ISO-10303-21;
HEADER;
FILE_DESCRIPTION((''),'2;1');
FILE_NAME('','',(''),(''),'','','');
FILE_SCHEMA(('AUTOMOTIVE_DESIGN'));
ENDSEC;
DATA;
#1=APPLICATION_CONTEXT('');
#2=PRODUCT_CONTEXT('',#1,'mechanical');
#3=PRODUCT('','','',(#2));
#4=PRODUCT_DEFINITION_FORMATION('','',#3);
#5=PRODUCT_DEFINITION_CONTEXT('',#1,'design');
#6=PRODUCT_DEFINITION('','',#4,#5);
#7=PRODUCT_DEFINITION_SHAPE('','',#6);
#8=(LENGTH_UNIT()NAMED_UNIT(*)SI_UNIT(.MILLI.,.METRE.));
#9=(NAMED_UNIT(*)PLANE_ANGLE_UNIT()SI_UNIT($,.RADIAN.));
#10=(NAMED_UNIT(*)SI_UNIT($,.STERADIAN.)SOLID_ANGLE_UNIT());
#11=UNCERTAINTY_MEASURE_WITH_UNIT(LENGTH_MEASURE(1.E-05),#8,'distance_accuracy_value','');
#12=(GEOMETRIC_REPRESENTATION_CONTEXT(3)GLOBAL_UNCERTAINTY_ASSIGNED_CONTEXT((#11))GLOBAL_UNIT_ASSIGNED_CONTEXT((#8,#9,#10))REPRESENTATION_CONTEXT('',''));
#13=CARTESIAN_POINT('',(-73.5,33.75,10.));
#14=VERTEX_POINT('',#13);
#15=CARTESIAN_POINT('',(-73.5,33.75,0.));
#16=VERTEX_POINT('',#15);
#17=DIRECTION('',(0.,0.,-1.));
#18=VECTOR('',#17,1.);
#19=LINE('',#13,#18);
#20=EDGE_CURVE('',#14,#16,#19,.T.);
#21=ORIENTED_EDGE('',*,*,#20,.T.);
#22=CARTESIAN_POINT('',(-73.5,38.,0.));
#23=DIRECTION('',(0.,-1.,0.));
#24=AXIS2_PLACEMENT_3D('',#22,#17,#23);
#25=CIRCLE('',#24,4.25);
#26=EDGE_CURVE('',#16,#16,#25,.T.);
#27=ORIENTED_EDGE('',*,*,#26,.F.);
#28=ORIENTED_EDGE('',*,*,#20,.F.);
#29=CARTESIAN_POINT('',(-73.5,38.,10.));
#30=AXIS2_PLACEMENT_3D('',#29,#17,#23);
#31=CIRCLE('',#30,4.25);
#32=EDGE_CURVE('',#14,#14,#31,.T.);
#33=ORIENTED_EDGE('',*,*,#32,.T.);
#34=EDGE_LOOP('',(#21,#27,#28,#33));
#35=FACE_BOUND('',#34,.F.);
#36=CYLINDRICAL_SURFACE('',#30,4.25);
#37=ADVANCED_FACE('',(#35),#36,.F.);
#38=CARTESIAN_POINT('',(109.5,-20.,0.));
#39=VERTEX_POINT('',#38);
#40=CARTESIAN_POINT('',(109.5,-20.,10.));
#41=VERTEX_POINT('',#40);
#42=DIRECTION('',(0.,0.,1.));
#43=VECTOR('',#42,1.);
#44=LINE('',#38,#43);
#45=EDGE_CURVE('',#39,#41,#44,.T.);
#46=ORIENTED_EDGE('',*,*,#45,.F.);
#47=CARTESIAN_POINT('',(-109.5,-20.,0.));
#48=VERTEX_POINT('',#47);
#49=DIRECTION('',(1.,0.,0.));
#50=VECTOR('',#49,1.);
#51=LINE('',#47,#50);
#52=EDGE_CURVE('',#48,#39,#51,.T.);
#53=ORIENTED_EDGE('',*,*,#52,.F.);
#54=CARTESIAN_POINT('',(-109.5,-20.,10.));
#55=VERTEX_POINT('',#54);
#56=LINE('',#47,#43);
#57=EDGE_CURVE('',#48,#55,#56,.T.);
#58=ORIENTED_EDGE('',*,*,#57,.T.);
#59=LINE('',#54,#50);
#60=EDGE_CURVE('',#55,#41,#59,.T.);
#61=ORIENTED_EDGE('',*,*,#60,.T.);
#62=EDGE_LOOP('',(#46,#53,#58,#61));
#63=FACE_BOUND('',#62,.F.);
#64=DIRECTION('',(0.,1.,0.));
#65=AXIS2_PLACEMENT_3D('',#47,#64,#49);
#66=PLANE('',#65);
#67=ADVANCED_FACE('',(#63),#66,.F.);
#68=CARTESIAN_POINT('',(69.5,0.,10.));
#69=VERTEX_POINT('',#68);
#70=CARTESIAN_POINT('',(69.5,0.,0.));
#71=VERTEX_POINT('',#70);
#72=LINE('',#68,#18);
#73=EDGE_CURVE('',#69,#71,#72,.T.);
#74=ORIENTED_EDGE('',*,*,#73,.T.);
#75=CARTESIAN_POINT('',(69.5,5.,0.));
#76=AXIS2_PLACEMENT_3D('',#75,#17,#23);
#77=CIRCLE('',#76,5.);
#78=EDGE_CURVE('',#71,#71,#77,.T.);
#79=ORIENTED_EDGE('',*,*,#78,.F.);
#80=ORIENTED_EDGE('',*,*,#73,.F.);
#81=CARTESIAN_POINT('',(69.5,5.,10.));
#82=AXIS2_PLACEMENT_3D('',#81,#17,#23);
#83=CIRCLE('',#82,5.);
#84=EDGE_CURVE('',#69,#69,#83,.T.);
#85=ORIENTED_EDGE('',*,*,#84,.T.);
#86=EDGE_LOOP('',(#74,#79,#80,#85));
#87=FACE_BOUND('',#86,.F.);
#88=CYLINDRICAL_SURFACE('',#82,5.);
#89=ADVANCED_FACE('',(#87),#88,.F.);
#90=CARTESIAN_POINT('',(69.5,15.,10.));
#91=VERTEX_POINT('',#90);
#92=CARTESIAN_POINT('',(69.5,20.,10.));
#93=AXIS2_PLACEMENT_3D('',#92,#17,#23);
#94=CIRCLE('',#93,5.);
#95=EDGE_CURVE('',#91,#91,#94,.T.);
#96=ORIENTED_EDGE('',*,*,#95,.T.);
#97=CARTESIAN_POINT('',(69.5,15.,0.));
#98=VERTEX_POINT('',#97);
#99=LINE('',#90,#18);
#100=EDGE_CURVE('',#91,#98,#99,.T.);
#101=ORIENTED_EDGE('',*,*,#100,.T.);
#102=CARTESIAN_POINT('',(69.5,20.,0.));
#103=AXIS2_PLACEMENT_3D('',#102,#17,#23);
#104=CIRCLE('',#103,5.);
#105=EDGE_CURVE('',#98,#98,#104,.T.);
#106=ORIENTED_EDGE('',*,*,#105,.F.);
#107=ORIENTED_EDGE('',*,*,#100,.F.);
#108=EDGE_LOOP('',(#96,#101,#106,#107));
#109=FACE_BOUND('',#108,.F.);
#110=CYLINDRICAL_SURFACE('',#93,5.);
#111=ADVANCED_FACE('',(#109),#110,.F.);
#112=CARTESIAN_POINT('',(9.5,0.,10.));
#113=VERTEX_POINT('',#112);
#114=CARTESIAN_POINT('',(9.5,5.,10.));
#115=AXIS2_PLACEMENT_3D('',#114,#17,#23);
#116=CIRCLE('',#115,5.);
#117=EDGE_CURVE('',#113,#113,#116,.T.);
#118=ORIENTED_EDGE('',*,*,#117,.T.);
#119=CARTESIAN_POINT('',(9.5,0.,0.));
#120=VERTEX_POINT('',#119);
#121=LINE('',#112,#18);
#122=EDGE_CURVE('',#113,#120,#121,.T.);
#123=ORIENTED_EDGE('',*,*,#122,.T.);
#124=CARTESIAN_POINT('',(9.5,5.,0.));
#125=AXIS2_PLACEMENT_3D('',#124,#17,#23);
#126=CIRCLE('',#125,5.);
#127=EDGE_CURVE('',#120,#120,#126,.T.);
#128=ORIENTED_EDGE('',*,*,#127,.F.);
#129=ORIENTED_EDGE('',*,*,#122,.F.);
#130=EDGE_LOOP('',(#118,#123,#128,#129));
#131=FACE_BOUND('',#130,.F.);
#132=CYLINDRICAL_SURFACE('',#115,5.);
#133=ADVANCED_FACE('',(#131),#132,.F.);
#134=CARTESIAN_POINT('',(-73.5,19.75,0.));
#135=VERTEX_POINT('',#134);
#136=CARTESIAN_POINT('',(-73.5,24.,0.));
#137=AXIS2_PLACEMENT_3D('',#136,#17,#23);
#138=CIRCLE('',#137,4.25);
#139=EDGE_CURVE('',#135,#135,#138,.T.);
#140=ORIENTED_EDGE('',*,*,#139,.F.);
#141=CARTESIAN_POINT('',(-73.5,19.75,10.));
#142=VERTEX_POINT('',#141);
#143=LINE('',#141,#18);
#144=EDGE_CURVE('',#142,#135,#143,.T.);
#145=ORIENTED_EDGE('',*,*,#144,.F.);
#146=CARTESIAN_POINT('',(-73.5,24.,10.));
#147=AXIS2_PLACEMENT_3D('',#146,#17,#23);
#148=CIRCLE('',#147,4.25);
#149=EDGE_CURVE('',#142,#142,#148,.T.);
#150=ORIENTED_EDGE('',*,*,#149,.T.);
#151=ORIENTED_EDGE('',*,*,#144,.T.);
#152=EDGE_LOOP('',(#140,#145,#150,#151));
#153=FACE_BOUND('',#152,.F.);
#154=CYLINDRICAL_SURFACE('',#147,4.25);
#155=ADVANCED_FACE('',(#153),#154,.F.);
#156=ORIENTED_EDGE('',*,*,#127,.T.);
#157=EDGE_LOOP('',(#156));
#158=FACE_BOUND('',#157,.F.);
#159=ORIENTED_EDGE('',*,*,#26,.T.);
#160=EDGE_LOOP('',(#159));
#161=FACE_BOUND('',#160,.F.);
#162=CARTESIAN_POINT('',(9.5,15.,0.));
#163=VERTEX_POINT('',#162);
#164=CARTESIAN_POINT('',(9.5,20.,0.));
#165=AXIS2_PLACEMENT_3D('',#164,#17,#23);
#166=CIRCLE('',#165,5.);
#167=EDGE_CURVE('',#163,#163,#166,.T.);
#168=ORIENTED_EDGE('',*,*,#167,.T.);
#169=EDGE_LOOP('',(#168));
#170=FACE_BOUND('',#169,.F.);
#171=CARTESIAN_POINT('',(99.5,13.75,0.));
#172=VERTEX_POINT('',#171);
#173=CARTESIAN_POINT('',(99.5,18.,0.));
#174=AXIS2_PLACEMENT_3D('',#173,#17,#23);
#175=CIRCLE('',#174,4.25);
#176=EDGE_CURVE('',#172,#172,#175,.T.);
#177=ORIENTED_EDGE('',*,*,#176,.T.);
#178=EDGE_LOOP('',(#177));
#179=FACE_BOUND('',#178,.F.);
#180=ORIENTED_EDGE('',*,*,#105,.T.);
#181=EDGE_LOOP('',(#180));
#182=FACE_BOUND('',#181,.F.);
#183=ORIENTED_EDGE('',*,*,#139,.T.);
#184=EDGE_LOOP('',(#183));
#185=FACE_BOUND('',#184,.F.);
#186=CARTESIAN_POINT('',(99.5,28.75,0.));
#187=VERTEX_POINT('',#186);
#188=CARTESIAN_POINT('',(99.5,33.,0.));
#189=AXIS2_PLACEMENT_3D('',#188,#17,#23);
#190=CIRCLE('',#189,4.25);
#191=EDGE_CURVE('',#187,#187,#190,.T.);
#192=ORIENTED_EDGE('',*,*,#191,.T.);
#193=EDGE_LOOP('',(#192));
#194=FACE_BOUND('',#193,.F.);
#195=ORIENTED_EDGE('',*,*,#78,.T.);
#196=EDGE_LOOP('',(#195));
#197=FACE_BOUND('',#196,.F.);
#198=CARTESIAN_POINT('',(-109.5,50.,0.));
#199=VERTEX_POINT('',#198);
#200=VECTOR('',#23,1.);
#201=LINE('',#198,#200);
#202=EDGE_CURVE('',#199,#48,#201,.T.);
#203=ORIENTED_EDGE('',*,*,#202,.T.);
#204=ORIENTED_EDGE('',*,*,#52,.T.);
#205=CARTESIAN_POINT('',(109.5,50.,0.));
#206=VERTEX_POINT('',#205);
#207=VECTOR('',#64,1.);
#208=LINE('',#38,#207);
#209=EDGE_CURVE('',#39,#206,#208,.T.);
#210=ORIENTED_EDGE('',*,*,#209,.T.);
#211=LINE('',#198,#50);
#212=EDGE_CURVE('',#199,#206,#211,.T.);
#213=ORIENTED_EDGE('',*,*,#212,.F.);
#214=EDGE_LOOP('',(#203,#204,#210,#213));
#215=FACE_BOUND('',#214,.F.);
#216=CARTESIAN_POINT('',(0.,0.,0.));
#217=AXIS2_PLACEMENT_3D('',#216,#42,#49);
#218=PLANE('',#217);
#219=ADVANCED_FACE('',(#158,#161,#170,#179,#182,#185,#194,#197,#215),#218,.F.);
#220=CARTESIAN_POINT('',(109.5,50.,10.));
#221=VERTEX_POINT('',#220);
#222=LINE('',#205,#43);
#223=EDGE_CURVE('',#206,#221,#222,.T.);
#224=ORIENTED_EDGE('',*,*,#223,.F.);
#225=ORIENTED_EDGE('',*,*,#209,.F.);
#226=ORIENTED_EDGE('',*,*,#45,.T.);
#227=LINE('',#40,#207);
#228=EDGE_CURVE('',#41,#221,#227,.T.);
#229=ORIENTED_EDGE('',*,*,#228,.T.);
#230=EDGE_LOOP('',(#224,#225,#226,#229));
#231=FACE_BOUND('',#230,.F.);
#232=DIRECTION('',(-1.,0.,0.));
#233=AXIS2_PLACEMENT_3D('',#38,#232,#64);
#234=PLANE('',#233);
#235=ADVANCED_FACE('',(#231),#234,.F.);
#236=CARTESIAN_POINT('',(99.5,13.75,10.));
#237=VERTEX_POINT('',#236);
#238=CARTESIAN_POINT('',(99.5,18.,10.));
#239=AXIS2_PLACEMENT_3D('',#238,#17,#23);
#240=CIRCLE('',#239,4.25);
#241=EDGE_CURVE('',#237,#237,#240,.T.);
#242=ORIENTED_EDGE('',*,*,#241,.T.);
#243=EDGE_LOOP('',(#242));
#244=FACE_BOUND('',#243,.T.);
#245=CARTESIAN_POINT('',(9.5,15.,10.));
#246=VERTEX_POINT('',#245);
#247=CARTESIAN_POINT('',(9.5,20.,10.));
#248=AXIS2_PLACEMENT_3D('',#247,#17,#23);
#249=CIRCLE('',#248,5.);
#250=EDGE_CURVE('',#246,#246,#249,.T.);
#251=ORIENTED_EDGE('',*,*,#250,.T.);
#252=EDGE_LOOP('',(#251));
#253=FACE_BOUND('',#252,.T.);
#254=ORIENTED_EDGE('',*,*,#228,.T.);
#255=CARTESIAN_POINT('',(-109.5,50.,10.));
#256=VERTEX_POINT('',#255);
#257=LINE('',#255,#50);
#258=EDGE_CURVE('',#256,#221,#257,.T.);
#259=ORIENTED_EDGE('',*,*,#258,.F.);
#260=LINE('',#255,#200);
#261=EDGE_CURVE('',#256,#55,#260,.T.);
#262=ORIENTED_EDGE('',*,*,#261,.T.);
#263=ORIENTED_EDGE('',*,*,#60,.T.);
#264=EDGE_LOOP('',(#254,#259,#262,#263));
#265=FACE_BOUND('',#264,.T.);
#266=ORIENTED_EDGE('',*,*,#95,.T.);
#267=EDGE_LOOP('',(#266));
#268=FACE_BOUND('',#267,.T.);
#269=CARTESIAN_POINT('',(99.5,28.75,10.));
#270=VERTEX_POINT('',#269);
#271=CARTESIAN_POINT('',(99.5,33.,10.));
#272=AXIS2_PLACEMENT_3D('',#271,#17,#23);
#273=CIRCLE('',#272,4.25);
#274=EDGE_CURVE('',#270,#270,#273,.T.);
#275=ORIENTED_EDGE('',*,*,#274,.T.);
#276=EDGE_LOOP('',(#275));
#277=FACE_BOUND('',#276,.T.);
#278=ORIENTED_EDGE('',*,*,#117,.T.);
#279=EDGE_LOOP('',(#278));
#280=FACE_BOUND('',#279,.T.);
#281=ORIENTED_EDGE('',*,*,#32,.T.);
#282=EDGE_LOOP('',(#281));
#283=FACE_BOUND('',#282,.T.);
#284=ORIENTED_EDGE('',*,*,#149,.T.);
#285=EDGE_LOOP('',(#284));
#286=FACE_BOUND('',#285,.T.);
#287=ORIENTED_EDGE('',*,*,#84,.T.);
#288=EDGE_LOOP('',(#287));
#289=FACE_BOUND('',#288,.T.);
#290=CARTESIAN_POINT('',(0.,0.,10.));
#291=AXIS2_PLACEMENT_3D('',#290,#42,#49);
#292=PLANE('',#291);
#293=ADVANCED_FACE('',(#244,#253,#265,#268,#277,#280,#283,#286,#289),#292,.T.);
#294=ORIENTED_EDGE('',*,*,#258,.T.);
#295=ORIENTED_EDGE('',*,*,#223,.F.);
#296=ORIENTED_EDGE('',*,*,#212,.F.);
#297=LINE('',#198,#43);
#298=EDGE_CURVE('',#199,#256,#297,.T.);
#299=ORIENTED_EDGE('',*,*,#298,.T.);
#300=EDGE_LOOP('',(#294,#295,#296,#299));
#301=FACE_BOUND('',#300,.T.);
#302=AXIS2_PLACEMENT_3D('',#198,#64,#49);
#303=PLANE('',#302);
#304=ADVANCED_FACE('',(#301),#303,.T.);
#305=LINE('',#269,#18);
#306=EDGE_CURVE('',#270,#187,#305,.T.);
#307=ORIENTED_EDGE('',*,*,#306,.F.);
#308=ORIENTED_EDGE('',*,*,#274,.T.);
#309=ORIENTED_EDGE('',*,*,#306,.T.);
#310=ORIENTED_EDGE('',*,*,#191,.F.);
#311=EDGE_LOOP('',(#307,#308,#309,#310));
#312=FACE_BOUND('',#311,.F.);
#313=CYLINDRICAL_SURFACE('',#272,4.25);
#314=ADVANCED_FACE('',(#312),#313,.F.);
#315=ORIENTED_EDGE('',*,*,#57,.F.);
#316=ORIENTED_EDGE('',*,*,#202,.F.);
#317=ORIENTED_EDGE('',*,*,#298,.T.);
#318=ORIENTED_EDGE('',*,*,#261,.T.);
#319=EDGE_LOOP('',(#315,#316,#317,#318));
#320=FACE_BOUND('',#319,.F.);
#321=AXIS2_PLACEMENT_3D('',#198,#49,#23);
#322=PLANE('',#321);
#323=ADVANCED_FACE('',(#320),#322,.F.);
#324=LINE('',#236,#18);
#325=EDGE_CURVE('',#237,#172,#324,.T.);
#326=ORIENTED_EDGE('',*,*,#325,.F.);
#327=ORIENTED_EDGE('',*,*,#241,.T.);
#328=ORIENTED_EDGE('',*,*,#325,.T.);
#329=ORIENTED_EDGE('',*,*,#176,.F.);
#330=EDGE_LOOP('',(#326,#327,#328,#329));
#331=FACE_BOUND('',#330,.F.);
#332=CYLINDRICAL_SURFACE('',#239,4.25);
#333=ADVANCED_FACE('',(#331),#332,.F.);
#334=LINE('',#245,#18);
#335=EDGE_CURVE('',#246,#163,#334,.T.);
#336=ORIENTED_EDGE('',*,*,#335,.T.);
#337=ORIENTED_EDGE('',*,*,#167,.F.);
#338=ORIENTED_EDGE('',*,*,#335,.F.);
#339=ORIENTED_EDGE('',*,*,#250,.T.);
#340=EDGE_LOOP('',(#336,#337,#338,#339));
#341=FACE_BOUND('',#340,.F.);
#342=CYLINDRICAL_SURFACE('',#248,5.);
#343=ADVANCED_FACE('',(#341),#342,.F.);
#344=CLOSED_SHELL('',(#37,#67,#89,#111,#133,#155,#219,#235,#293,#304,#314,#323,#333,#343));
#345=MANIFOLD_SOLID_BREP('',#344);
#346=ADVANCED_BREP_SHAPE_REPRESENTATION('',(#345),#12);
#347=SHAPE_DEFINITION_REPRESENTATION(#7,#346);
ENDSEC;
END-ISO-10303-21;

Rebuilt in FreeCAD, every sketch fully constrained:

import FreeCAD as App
import Part
import Sketcher


def add_polygon(sketch, points):
    """Adds a closed chain of lines whose ends are joined by coincident constraints."""
    first, n = sketch.GeometryCount, len(points)
    for a, b in zip(points, points[1:] + points[:1]):
        sketch.addGeometry(Part.LineSegment(App.Vector(*a, 0), App.Vector(*b, 0)), False)
    for i in range(n):
        sketch.addConstraint(Sketcher.Constraint("Coincident", first + i, 2, first + (i + 1) % n, 1))

doc = App.newDocument("Part")
body = doc.addObject("PartDesign::Body", "Body")

# Sketch on XY plane
sketch1 = body.newObject("Sketcher::SketchObject", "Sketch")
sketch1.AttachmentSupport = (doc.getObject("XY_Plane"), [""])
sketch1.MapMode = "FlatFace"
add_polygon(sketch1, [(110, 50), (-110, 50), (-110, -20), (110, -20)])  # lines 0-3
sketch1.addConstraint([
    Sketcher.Constraint("Horizontal", 0),
    Sketcher.Constraint("Vertical", 1),
    Sketcher.Constraint("Horizontal", 2),
    Sketcher.Constraint("Vertical", 3),
    Sketcher.Constraint("DistanceX", 0, 2, 0, 1, 219.0),
    Sketcher.Constraint("DistanceY", 1, 2, 1, 1, 70.0),
    Sketcher.Constraint("DistanceY", -1, 1, 0, 2, 50.0),
    Sketcher.Constraint("DistanceX", 0, 2, -1, 1, 109.5),
])
pad1 = body.newObject("PartDesign::Pad", "Pad")
pad1.Profile = sketch1
pad1.Length = 10

# Sketch on XY plane
sketch2 = body.newObject("Sketcher::SketchObject", "Sketch001")
sketch2.AttachmentSupport = (doc.getObject("XY_Plane"), [""])
sketch2.MapMode = "FlatFace"
sketch2.AttachmentOffset = App.Placement(App.Vector(0, 0, 10), App.Rotation())
sketch2.addGeometry([
    Part.Circle(App.Vector(99.5, 33, 0), App.Vector(0, 0, 1), 4.2),
    Part.Circle(App.Vector(99.5, 18, 0), App.Vector(0, 0, 1), 4.2),
    Part.Circle(App.Vector(-73.5, 24, 0), App.Vector(0, 0, 1), 4.2),
    Part.Circle(App.Vector(-73.5, 38, 0), App.Vector(0, 0, 1), 4.2),
], False)
sketch2.addConstraint([
    Sketcher.Constraint("Equal", 0, 1),
    Sketcher.Constraint("Equal", 1, 2),
    Sketcher.Constraint("Equal", 2, 3),
    Sketcher.Constraint("Vertical", 0, 3, 1, 3),
    Sketcher.Constraint("Vertical", 2, 3, 3, 3),
    Sketcher.Constraint("Diameter", 0, 8.5),
    Sketcher.Constraint("DistanceY", -1, 1, 0, 3, 33.0),
    Sketcher.Constraint("DistanceY", -1, 1, 1, 3, 18.0),
    Sketcher.Constraint("DistanceY", -1, 1, 2, 3, 24.0),
    Sketcher.Constraint("DistanceY", -1, 1, 3, 3, 38.0),
    Sketcher.Constraint("DistanceX", 2, 3, 1, 3, 173.0),
    Sketcher.Constraint("DistanceX", -1, 1, 0, 3, 99.5),
])
doc.recompute()
hole = body.newObject("PartDesign::Hole", "Hole")
hole.Profile = sketch2
hole.ThreadType = "None"
hole.Diameter = 8.5
hole.DepthType = "ThroughAll"

# Sketch on XY plane
sketch3 = body.newObject("Sketcher::SketchObject", "Sketch002")
sketch3.AttachmentSupport = (doc.getObject("XY_Plane"), [""])
sketch3.MapMode = "FlatFace"
sketch3.AttachmentOffset = App.Placement(App.Vector(0, 0, 10), App.Rotation())
sketch3.addGeometry([
    Part.Circle(App.Vector(10, 5, 0), App.Vector(0, 0, 1), 5),
    Part.Circle(App.Vector(10, 20, 0), App.Vector(0, 0, 1), 5),
    Part.Circle(App.Vector(70, 5, 0), App.Vector(0, 0, 1), 5),
    Part.Circle(App.Vector(70, 20, 0), App.Vector(0, 0, 1), 5),
], False)
sketch3.addConstraint([
    Sketcher.Constraint("Equal", 0, 1),
    Sketcher.Constraint("Equal", 1, 2),
    Sketcher.Constraint("Equal", 2, 3),
    Sketcher.Constraint("Horizontal", 0, 3, 2, 3),
    Sketcher.Constraint("Horizontal", 1, 3, 3, 3),
    Sketcher.Constraint("Vertical", 0, 3, 1, 3),
    Sketcher.Constraint("Vertical", 2, 3, 3, 3),
    Sketcher.Constraint("Diameter", 0, 10.0),
    Sketcher.Constraint("DistanceY", -1, 1, 0, 3, 5.0),
    Sketcher.Constraint("DistanceY", -1, 1, 1, 3, 20.0),
    Sketcher.Constraint("DistanceX", 0, 3, 2, 3, 60.0),
    Sketcher.Constraint("DistanceX", -1, 1, 0, 3, 9.5),
])
doc.recompute()
hole2 = body.newObject("PartDesign::Hole", "Hole001")
hole2.Profile = sketch3
hole2.ThreadType = "None"
hole2.Diameter = 10
hole2.DepthType = "ThroughAll"

doc.recompute()
